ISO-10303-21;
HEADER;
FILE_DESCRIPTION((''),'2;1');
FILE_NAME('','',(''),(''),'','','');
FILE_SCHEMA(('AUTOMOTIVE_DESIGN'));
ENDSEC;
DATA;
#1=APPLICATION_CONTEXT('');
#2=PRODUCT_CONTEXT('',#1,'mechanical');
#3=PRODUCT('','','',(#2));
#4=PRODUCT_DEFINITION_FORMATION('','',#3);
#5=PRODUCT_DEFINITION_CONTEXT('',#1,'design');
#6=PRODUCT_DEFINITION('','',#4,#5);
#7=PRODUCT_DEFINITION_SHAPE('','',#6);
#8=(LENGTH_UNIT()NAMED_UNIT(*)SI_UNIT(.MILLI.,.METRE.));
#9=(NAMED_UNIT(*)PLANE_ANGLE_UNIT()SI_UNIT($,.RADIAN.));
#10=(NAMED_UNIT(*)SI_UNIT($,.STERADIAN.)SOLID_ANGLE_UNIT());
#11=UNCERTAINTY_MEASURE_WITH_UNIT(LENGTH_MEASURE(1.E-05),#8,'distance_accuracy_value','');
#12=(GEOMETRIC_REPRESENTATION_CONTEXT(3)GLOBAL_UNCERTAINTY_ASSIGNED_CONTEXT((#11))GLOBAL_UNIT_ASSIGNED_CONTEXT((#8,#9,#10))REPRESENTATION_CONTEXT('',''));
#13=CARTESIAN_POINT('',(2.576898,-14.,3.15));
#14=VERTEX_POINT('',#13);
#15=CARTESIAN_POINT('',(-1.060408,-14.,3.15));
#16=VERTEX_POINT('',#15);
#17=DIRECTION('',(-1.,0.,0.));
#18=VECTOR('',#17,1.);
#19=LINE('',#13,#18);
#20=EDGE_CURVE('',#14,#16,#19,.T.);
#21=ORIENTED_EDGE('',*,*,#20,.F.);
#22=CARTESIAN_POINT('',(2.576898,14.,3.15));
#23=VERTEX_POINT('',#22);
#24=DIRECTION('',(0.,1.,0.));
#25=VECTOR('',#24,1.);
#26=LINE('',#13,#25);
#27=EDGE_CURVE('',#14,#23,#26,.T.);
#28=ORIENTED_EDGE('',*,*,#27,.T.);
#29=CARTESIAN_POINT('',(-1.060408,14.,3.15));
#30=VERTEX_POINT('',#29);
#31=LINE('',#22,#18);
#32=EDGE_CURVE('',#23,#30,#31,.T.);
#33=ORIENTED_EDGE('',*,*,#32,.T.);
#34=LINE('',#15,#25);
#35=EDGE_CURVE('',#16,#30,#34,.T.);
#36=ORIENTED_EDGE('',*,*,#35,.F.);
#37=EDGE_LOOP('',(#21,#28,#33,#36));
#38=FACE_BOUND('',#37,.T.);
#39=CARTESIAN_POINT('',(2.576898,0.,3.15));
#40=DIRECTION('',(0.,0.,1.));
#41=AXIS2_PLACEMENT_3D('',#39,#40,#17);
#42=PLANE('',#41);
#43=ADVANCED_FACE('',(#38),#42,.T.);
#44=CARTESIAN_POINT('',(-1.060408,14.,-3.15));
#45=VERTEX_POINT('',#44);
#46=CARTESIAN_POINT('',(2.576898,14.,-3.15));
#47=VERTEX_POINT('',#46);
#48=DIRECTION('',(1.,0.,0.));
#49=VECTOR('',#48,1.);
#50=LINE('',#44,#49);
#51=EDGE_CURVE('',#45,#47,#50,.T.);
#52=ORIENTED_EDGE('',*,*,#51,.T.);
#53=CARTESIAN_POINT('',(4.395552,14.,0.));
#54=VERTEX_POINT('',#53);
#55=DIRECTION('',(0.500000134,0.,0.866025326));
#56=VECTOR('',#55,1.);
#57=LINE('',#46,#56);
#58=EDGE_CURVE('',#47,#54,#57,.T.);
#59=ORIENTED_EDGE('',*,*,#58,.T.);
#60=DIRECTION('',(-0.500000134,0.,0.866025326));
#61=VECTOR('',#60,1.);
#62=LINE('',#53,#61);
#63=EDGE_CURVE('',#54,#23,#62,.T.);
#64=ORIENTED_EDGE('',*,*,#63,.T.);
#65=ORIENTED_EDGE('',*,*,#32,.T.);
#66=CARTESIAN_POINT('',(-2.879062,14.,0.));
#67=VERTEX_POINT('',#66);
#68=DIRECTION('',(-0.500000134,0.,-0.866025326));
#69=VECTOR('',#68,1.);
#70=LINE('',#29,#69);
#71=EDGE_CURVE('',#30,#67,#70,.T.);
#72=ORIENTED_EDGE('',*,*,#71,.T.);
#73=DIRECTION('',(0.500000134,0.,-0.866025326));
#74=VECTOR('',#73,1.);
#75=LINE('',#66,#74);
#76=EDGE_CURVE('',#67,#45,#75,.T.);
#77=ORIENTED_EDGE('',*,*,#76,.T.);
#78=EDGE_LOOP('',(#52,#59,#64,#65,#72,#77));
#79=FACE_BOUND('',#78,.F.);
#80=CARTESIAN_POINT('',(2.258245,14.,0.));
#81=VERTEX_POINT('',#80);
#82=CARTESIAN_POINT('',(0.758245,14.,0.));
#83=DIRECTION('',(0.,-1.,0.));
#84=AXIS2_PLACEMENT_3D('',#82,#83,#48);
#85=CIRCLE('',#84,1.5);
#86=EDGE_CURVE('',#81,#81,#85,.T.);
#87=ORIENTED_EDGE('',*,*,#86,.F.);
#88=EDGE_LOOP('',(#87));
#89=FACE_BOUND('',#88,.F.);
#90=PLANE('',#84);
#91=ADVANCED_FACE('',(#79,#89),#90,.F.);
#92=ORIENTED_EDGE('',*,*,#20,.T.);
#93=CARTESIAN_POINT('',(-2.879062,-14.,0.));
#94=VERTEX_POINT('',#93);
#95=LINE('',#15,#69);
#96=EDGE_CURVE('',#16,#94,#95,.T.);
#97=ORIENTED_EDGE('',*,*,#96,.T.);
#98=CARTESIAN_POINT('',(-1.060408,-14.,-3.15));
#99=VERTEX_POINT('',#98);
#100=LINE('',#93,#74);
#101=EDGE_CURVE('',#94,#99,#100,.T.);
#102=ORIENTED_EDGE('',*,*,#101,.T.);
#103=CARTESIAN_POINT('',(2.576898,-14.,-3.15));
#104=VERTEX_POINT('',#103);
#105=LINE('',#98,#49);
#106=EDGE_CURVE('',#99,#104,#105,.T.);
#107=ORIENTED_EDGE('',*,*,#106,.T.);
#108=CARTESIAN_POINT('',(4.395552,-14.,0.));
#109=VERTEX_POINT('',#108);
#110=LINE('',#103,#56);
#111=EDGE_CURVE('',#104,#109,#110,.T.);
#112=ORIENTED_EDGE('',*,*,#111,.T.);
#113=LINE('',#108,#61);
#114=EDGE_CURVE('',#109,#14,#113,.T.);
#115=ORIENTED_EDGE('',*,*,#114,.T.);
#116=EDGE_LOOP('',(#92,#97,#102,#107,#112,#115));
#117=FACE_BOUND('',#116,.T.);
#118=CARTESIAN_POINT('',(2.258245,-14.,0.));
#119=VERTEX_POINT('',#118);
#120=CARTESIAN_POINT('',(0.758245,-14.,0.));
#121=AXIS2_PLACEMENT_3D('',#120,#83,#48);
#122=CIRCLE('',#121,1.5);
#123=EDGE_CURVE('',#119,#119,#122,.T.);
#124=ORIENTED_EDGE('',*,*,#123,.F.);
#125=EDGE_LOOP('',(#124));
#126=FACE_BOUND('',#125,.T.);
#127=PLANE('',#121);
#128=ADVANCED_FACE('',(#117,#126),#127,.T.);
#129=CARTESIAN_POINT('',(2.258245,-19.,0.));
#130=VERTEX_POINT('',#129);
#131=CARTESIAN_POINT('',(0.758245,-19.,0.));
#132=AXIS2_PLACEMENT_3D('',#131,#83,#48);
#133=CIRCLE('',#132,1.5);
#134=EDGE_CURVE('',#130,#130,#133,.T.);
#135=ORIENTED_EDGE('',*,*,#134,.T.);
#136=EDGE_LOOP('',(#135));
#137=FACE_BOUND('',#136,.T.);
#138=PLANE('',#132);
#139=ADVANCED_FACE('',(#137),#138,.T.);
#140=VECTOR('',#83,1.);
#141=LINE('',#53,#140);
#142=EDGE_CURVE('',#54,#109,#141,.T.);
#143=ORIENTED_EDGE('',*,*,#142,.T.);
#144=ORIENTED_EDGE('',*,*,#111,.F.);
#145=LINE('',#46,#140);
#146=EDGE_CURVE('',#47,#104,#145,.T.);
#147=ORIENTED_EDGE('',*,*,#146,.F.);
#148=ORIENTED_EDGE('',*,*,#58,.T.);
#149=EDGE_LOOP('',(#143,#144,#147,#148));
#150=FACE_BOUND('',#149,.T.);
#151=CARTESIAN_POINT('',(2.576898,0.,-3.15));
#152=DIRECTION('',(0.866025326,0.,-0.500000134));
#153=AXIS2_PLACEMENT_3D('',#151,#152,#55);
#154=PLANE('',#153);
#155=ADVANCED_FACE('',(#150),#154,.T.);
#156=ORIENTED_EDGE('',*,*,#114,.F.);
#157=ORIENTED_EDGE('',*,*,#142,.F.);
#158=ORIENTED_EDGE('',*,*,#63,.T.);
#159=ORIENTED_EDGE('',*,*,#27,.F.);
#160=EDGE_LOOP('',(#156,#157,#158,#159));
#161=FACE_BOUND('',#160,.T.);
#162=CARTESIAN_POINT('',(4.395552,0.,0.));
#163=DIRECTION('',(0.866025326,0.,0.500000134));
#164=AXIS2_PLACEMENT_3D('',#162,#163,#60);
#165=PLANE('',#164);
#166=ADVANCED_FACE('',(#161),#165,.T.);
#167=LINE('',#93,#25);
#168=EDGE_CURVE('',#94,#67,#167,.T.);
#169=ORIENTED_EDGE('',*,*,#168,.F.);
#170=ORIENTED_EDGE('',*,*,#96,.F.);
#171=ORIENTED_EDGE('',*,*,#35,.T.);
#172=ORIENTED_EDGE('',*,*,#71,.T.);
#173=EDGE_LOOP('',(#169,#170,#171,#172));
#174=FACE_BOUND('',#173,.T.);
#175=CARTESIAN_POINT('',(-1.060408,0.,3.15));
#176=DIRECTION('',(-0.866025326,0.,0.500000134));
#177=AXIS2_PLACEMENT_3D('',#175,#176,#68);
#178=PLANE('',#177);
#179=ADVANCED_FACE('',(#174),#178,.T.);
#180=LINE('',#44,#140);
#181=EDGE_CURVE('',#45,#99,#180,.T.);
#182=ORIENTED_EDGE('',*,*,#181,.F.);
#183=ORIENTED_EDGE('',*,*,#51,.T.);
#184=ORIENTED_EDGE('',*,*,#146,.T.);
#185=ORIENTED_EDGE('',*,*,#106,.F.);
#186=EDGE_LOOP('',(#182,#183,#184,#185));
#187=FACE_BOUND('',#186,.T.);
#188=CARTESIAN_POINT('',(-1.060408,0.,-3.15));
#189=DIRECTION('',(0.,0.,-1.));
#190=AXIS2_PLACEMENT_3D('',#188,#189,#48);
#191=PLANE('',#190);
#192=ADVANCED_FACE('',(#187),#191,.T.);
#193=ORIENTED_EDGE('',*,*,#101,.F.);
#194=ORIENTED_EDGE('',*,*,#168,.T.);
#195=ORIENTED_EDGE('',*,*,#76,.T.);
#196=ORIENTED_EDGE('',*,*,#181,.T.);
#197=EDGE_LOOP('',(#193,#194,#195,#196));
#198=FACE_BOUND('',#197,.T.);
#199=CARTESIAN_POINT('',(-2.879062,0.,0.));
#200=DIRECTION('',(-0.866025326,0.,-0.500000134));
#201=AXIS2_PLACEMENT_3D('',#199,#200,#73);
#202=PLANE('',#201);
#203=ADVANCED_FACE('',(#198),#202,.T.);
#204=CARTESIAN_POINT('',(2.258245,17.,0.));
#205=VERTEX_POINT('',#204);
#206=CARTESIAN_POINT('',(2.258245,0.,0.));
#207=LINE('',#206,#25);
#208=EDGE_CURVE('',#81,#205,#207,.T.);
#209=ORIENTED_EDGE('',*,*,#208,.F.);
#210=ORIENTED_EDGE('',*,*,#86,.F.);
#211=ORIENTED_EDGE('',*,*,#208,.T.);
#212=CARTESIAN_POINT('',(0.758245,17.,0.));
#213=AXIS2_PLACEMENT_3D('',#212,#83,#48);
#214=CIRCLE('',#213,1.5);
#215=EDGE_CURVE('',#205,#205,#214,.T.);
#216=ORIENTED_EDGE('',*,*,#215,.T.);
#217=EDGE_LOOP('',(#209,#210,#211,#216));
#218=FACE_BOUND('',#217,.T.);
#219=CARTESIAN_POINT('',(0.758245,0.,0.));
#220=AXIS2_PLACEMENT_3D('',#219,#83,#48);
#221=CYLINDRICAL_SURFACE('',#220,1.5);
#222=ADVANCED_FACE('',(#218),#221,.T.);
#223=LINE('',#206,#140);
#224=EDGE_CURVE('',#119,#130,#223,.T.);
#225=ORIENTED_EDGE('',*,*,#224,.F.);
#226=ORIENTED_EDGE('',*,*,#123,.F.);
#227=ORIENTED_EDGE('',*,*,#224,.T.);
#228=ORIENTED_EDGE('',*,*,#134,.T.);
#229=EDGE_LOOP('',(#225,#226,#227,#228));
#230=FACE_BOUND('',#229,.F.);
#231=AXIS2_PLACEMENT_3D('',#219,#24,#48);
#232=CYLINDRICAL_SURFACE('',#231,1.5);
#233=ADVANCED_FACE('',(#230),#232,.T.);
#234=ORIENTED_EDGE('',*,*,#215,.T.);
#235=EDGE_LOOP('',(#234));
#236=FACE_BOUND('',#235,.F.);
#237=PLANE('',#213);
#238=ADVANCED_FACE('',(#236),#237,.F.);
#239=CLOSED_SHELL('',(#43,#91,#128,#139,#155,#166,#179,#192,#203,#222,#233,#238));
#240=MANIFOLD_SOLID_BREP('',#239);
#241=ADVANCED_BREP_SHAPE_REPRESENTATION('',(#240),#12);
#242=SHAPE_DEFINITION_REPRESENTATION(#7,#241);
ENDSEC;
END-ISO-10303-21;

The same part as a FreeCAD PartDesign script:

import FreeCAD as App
import Part
import Sketcher
Q = App.Units.Quantity


def add_polygon(sketch, points):
    """Adds a closed chain of lines whose ends are joined by coincident constraints."""
    first, n = sketch.GeometryCount, len(points)
    for a, b in zip(points, points[1:] + points[:1]):
        sketch.addGeometry(Part.LineSegment(App.Vector(*a, 0), App.Vector(*b, 0)), False)
    for i in range(n):
        sketch.addConstraint(Sketcher.Constraint("Coincident", first + i, 2, first + (i + 1) % n, 1))

doc = App.newDocument("Part")
body = doc.addObject("PartDesign::Body", "Body")

# Sketch on XZ plane
sketch1 = body.newObject("Sketcher::SketchObject", "Sketch")
sketch1.AttachmentSupport = (doc.getObject("XZ_Plane"), [""])
sketch1.MapMode = "FlatFace"
add_polygon(sketch1, [(-2.879062, 0), (-1.060408, -3.15), (2.576898, -3.15), (4.395552, 0), (2.576898, 3.15), (-1.060408, 3.15)])  # lines 0-5
sketch1.addGeometry(Part.Circle(App.Vector(0.758245, 0, 0), App.Vector(0, 0, 1), 1.5), False)  # 6
sketch1.addConstraint([
    Sketcher.Constraint("Horizontal", 1),
    Sketcher.Constraint("Horizontal", 4),
    Sketcher.Constraint("Symmetric", 1, 2, 3, 2, -1),
    Sketcher.Constraint("PointOnObject", 6, 3, -1),
    Sketcher.Constraint("PointOnObject", 2, 2, -1),
    Sketcher.Constraint("PointOnObject", 5, 2, -1),
    Sketcher.Constraint("Parallel", 0, 3),
    Sketcher.Constraint("Parallel", 2, 5),
    Sketcher.Constraint("Diameter", 6, Q("3 mm")),
    Sketcher.Constraint("Angle", 0, Q("-59.999991 deg")),
    Sketcher.Constraint("DistanceY", 1, 2, 3, 2, Q("6.3 mm")),
    Sketcher.Constraint("DistanceX", 1, 1, 1, 2, Q("3.637306 mm")),
    Sketcher.Constraint("DistanceX", 5, 2, -1, 1, Q("2.879062 mm")),
    Sketcher.Constraint("DistanceX", -1, 1, 6, 3, Q("0.758245 mm")),
])
pad1 = body.newObject("PartDesign::Pad", "Pad")
pad1.Profile = sketch1
pad1.Length = 28
pad1.Midplane = True

# Sketch on XZ plane
sketch2 = body.newObject("Sketcher::SketchObject", "Sketch001")
sketch2.AttachmentSupport = (doc.getObject("XZ_Plane"), [""])
sketch2.MapMode = "FlatFace"
sketch2.addGeometry(Part.Circle(App.Vector(0.758245, 0, 0), App.Vector(0, 0, 1), 1.5), False)
sketch2.addConstraint([
    Sketcher.Constraint("PointOnObject", 0, 3, -1),
    Sketcher.Constraint("Diameter", 0, Q("3 mm")),
    Sketcher.Constraint("DistanceX", -1, 1, 0, 3, Q("0.758245 mm")),
])
pad2 = body.newObject("PartDesign::Pad", "Pad001")
pad2.Profile = sketch2
pad2.Length = 19

# Sketch on XZ plane
sketch3 = body.newObject("Sketcher::SketchObject", "Sketch002")
sketch3.AttachmentSupport = (doc.getObject("XZ_Plane"), [""])
sketch3.MapMode = "FlatFace"
sketch3.addGeometry(Part.Circle(App.Vector(0.758245, 0, 0), App.Vector(0, 0, 1), 1.5), False)
sketch3.addConstraint([
    Sketcher.Constraint("PointOnObject", 0, 3, -1),
    Sketcher.Constraint("Diameter", 0, Q("3 mm")),
    Sketcher.Constraint("DistanceX", -1, 1, 0, 3, Q("0.758245 mm")),
])
pad3 = body.newObject("PartDesign::Pad", "Pad002")
pad3.Profile = sketch3
pad3.Length = 17
pad3.Reversed = True

doc.recompute()
